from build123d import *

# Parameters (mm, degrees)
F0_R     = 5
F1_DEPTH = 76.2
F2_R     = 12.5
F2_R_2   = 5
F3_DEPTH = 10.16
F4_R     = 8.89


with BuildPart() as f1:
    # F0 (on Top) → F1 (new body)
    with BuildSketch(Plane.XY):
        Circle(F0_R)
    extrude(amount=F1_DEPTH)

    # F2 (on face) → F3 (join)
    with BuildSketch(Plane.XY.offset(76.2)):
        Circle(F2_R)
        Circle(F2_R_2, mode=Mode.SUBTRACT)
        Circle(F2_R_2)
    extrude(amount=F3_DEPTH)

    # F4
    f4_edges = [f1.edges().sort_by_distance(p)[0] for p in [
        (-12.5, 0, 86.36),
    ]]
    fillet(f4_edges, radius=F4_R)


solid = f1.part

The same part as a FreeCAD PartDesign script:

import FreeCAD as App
import Part
import Sketcher

V = App.Vector
Q = App.Units.Quantity


def edges_at(feature, points):
    """Names of the edges that pass closest to the given points."""
    edges = feature.Shape.Edges
    near = lambda p: min(range(len(edges)), key=lambda i: edges[i].distToShape(Part.Vertex(*p))[0])
    return sorted({f"Edge{near(p) + 1}" for p in points})

doc = App.newDocument("Part")
body = doc.addObject("PartDesign::Body", "Body")

sketch1 = body.newObject("Sketcher::SketchObject", "Sketch")
sketch1.AttachmentSupport = (doc.getObject("XY_Plane"), [""])
sketch1.MapMode = "FlatFace"
sketch1.addGeometry(Part.Circle(V(0, 0, 0), V(0, 0, 1), 5), False)
sketch1.addConstraint(Sketcher.Constraint("Coincident", 0, 3, -1, 1))
sketch1.addConstraint(Sketcher.Constraint("Diameter", 0, 10.0))
pad1 = body.newObject("PartDesign::Pad", "Pad")
pad1.Profile = sketch1
pad1.Length = Q("3 in")

sketch2 = body.newObject("Sketcher::SketchObject", "Sketch001")
sketch2.AttachmentSupport = (doc.getObject("XY_Plane"), [""])
sketch2.MapMode = "FlatFace"
sketch2.AttachmentOffset = App.Placement(V(0, 0, 3 * 25.4), App.Rotation())
sketch2.addGeometry(Part.Circle(V(0, 0, 0), V(0, 0, 1), 12), False)
sketch2.addConstraint(Sketcher.Constraint("Coincident", 0, 3, -1, 1))
sketch2.addConstraint(Sketcher.Constraint("Diameter", 0, 25.0))
pad2 = body.newObject("PartDesign::Pad", "Pad001")
pad2.Profile = sketch2
pad2.Length = Q("0.4 in")
doc.recompute()

fillet = body.newObject("PartDesign::Fillet", "Fillet")
fillet.Base = (pad2, edges_at(pad2, [(-12.5, 0, 86.36)]))
fillet.Radius = Q("0.35 in")

doc.recompute()
